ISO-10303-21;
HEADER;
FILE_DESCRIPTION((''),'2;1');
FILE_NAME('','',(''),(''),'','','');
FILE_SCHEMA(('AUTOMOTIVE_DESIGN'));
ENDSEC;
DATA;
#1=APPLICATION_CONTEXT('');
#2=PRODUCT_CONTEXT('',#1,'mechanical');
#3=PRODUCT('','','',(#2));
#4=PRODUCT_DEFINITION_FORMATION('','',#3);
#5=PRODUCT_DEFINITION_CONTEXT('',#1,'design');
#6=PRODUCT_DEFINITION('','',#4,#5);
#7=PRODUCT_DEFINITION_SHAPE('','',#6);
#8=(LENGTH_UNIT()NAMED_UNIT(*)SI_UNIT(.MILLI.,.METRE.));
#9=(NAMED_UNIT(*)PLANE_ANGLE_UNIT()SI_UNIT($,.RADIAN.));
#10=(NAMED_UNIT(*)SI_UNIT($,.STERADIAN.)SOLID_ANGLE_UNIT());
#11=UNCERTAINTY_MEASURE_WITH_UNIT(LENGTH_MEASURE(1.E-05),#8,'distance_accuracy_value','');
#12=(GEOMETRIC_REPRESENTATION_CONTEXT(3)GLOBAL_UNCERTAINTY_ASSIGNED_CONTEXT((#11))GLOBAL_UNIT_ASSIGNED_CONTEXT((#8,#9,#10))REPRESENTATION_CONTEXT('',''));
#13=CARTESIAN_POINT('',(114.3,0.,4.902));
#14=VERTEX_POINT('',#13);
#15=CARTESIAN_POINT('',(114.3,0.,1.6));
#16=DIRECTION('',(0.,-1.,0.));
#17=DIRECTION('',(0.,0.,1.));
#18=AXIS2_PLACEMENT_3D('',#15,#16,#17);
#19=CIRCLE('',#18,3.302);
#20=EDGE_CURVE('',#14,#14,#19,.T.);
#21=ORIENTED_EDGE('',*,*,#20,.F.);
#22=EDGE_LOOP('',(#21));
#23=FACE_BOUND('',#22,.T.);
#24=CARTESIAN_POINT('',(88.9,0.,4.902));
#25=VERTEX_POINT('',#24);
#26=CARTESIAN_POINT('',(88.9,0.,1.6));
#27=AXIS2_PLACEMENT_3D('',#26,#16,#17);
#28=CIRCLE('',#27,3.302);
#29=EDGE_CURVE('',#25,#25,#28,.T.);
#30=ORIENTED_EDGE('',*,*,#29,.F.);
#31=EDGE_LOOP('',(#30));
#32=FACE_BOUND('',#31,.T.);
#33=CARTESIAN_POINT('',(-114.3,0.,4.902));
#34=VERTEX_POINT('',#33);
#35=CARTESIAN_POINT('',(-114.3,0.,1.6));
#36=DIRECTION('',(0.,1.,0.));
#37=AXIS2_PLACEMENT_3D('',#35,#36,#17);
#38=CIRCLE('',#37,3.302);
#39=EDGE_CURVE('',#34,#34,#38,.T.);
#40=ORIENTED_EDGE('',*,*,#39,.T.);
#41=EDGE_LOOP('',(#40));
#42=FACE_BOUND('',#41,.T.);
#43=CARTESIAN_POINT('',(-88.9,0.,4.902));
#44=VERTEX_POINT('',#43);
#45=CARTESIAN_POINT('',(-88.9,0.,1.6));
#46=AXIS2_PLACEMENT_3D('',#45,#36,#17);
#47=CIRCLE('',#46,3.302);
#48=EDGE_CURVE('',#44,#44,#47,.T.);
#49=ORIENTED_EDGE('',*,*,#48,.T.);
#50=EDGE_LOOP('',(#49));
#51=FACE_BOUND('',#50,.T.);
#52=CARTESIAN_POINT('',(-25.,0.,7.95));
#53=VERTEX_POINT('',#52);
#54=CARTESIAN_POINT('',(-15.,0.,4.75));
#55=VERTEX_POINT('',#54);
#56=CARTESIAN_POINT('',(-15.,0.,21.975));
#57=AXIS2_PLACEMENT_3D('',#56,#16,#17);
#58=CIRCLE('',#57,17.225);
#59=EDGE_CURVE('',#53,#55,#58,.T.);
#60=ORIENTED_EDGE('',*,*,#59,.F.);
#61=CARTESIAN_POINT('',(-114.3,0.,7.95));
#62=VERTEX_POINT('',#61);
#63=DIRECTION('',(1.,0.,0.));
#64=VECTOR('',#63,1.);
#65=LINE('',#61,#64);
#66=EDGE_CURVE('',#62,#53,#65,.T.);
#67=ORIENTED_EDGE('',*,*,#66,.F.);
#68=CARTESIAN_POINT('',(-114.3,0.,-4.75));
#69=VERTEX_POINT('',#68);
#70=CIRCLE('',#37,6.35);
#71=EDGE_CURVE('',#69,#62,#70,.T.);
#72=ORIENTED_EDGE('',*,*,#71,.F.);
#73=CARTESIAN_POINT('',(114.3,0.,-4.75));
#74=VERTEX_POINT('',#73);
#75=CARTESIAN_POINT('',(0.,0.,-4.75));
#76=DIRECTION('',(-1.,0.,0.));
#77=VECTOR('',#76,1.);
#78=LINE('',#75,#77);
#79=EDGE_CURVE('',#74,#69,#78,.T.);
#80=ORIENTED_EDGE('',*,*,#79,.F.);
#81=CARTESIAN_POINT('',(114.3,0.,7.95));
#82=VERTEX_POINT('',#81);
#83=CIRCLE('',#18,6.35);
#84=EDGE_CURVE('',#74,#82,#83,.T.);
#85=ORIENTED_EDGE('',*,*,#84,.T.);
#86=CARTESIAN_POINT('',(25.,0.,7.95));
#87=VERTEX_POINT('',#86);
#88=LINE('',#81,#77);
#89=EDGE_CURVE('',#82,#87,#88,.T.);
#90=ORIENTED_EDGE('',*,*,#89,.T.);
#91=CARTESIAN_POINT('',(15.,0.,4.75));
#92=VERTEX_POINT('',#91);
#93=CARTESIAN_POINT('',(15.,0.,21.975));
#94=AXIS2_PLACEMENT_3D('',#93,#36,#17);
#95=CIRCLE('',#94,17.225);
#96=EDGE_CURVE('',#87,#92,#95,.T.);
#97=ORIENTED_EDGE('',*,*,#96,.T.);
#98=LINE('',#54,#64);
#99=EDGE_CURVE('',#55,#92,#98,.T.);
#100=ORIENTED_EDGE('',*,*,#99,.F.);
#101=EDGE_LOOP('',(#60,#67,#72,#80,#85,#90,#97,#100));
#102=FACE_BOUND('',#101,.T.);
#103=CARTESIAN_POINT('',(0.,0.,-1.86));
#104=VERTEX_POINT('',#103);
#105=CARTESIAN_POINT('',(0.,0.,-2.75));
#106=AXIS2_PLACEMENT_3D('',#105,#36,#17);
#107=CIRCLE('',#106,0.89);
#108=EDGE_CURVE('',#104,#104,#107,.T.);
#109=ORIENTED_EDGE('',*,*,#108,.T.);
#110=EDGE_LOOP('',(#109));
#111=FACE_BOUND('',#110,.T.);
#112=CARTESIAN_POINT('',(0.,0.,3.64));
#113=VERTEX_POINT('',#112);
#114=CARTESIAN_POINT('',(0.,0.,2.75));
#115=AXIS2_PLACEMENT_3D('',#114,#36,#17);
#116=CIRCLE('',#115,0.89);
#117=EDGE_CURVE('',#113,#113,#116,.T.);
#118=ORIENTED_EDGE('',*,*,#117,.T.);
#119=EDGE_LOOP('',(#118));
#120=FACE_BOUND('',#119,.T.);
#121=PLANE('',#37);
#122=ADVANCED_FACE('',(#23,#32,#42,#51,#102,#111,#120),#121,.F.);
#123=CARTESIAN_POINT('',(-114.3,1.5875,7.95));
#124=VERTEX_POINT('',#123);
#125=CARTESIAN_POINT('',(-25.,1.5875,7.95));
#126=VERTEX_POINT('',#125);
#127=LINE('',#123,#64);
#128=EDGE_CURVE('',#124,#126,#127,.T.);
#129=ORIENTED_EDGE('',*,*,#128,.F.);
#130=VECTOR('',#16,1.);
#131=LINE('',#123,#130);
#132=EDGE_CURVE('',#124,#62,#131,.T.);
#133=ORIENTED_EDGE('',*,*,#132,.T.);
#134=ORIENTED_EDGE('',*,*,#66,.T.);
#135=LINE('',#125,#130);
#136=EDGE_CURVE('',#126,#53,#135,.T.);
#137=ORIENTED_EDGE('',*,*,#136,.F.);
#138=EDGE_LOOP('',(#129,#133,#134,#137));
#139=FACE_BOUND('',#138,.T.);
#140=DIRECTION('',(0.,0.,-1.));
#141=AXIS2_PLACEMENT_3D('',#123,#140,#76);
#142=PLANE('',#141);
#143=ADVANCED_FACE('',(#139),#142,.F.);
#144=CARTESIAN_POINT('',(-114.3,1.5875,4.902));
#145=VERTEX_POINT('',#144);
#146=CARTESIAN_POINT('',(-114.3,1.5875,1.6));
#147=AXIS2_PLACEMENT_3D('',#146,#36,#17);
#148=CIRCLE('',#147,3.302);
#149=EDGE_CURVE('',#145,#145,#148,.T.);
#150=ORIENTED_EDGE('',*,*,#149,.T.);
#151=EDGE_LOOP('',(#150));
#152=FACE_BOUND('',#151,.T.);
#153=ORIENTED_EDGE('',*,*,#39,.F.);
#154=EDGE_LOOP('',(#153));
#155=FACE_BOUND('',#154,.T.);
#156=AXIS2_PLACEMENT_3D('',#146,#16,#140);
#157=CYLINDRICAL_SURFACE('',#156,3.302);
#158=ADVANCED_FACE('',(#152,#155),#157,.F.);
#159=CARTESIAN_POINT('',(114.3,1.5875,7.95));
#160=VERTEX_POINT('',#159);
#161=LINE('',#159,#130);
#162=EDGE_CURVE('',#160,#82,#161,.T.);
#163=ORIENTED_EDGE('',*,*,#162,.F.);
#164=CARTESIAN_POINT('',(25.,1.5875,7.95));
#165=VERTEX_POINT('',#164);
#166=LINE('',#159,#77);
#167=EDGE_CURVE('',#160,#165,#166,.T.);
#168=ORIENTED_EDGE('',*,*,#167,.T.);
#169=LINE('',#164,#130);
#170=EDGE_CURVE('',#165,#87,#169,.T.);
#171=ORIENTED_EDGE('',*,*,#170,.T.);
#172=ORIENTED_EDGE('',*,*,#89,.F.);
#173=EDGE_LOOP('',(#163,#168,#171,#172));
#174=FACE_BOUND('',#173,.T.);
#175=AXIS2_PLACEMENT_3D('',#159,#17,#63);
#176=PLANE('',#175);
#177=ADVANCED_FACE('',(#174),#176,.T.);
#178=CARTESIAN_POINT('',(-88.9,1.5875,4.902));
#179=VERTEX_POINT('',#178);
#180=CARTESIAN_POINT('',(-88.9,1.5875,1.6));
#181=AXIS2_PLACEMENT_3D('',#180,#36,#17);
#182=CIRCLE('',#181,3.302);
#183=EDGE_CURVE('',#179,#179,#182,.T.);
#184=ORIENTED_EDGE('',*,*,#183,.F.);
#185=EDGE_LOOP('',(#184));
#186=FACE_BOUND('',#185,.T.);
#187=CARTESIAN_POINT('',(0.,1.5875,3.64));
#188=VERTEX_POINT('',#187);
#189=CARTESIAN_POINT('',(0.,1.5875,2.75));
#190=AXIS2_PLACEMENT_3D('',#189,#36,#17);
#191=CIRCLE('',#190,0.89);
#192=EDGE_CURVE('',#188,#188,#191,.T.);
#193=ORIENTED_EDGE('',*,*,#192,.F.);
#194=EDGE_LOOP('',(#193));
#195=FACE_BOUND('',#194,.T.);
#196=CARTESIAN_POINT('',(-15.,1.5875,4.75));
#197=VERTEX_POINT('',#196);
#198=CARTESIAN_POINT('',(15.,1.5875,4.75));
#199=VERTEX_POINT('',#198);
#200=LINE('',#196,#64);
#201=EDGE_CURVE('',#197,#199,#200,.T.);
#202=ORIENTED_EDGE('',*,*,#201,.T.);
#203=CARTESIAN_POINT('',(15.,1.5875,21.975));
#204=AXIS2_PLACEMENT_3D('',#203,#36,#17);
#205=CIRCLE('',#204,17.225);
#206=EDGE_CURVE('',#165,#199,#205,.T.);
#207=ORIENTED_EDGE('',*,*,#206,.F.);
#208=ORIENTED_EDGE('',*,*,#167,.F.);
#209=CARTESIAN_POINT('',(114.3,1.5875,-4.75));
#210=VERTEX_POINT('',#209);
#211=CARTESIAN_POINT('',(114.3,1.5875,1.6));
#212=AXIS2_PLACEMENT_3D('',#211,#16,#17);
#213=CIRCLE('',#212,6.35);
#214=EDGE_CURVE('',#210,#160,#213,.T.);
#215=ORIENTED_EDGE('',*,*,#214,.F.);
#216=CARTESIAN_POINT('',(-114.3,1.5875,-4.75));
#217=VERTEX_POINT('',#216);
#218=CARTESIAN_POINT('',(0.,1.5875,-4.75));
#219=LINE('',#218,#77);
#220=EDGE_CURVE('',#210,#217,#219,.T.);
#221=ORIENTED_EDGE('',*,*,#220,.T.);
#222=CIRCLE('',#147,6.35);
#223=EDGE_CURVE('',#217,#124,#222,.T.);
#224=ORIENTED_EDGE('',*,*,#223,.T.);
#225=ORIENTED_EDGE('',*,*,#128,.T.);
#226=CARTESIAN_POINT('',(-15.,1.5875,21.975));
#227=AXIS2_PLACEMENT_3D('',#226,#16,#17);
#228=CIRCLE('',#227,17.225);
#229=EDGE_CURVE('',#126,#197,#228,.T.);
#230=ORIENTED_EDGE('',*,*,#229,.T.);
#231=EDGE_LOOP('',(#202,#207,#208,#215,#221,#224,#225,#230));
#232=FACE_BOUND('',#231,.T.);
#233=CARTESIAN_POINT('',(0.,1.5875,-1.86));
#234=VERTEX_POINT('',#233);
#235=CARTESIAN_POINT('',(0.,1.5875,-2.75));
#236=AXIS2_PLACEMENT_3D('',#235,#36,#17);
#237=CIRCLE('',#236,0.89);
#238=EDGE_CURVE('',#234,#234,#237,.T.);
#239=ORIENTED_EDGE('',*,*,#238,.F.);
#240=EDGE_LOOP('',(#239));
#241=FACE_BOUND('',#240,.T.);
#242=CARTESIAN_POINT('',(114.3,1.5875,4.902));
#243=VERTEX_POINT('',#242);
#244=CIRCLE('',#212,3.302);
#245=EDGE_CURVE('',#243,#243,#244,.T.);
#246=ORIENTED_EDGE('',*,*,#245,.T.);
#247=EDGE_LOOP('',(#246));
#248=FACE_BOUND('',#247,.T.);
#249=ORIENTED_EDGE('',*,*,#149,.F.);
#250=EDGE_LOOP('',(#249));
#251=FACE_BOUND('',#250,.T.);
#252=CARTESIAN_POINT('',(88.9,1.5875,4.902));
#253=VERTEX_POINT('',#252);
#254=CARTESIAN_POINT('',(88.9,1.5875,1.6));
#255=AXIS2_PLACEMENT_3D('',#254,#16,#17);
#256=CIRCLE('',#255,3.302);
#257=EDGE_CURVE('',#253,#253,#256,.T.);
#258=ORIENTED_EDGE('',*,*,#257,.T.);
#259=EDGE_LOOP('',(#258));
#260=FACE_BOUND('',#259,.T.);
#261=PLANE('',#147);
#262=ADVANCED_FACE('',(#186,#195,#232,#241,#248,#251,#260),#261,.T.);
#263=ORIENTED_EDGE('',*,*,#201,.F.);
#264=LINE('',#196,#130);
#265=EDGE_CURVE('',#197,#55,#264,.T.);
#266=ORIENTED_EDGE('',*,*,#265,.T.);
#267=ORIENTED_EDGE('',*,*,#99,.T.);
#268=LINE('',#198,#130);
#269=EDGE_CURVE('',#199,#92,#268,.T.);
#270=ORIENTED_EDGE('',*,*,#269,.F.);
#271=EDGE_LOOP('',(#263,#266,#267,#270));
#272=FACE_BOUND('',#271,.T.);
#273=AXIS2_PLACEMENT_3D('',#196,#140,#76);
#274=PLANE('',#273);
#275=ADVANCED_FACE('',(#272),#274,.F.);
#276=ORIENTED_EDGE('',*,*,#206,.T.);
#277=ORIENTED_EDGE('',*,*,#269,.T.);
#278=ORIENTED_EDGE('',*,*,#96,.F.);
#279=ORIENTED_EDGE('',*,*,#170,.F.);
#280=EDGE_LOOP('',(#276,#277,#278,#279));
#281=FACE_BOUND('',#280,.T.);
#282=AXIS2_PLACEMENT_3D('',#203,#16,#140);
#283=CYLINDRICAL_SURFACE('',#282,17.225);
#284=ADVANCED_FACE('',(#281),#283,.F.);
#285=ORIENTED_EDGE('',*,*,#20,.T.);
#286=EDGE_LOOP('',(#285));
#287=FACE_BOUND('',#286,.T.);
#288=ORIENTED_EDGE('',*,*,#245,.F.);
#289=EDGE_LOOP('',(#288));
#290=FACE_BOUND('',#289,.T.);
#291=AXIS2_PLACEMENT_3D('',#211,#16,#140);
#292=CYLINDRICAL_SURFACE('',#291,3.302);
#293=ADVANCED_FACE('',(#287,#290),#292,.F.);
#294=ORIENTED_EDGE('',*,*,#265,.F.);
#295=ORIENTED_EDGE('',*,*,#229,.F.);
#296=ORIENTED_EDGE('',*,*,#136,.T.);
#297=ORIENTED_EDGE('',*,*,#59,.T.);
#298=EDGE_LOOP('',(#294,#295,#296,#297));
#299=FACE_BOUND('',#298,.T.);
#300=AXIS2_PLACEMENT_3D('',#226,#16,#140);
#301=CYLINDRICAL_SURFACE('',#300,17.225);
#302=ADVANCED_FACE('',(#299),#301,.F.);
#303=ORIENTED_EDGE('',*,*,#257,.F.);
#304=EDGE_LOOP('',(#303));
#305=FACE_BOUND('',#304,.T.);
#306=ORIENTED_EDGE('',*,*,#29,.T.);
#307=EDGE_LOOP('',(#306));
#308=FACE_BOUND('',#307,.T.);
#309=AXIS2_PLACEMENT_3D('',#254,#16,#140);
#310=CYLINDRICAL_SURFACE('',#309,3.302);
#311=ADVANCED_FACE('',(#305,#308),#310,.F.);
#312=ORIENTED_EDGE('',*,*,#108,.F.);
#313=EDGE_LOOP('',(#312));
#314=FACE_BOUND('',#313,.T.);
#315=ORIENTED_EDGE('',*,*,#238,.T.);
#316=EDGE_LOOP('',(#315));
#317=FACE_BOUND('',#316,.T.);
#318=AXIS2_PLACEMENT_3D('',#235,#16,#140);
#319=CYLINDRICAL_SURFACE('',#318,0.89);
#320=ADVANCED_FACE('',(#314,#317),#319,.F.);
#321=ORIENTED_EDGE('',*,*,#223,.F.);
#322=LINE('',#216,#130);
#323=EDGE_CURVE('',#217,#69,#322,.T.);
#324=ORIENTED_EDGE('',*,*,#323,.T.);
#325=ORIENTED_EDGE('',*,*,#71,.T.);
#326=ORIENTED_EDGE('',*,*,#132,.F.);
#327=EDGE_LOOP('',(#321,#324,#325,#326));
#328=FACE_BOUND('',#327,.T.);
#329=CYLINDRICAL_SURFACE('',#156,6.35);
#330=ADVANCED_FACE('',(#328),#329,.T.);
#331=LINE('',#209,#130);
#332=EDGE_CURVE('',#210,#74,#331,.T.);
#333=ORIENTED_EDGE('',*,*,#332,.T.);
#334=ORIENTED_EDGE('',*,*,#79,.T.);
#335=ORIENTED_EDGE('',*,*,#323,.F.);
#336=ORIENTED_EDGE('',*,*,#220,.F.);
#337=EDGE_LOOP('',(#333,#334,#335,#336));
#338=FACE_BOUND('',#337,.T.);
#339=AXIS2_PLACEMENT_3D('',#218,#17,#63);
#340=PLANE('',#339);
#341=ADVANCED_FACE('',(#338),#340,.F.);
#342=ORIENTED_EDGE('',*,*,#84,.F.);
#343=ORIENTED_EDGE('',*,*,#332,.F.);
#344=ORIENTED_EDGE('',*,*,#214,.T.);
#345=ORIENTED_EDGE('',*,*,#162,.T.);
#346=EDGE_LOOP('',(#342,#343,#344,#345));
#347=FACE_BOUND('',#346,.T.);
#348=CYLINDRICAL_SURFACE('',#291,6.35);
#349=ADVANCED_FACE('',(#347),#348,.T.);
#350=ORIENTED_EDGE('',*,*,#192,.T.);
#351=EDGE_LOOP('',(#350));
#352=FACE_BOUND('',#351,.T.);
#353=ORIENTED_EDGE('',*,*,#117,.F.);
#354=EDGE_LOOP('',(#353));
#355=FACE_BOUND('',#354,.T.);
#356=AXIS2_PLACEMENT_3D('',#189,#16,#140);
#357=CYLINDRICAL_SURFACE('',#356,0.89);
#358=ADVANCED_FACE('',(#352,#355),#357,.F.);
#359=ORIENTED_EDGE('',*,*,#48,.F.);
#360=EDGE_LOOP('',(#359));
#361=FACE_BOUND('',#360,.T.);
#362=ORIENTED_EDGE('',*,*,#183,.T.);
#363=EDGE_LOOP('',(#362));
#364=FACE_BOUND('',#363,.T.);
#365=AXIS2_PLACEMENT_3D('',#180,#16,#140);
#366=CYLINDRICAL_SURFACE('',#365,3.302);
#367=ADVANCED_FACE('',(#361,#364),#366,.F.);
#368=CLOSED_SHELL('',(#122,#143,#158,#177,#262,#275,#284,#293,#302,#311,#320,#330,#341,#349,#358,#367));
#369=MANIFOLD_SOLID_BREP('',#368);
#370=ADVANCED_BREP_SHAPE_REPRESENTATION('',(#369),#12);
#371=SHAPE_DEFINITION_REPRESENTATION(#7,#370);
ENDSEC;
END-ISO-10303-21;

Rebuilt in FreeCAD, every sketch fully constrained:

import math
import FreeCAD as App
import Part
import Sketcher
Q = App.Units.Quantity

doc = App.newDocument("Part")
body = doc.addObject("PartDesign::Body", "Body")

# Sketch on XZ plane
sketch1 = doc.addObject("Sketcher::SketchObject", "Sketch")
body.addObject(sketch1)
sketch1.AttachmentSupport = (doc.XZ_Plane, [""])
sketch1.MapMode = "FlatFace"
sketch1.addGeometry([
    Part.LineSegment(App.Vector(0, -4.8, 0), App.Vector(-114.3, -4.8, 0)),  # 0
    Part.ArcOfCircle(Part.Circle(App.Vector(-114.3, 1.6, 0), App.Vector(0, 0, 1), 6.3), math.radians(90), math.radians(270)),  # 1
    Part.LineSegment(App.Vector(-114.3, 8, 0), App.Vector(-25, 8, 0)),  # 2
    Part.ArcOfCircle(Part.Circle(App.Vector(-15, 22, 0), App.Vector(0, 0, 1), 17.2), math.radians(-125), math.radians(-90)),  # 3
    Part.LineSegment(App.Vector(-15, 4.8, 0), App.Vector(0, 4.8, 0)),  # 4
    Part.LineSegment(App.Vector(0, 4.8, 0), App.Vector(0, -4.8, 0)),  # 5
    Part.Circle(App.Vector(-114.3, 1.6, 0), App.Vector(0, 0, 1), 3.3),  # 6
    Part.Circle(App.Vector(-88.9, 1.6, 0), App.Vector(0, 0, 1), 3.3),  # 7
], False)
sketch1.addConstraint([
    Sketcher.Constraint("Tangent", 0, 2, 1, 2),
    Sketcher.Constraint("Tangent", 1, 1, 2, 1),
    Sketcher.Constraint("Coincident", 2, 2, 3, 1),
    Sketcher.Constraint("Tangent", 3, 2, 4, 1),
    Sketcher.Constraint("Coincident", 4, 2, 5, 1),
    Sketcher.Constraint("Coincident", 5, 2, 0, 1),
    Sketcher.Constraint("Horizontal", 0),
    Sketcher.Constraint("Horizontal", 2),
    Sketcher.Constraint("Horizontal", 4),
    Sketcher.Constraint("Vertical", 5),
    Sketcher.Constraint("Coincident", 6, 3, 1, 3),
    Sketcher.Constraint("Equal", 6, 7),
    Sketcher.Constraint("Symmetric", 4, 2, 5, 2, -1, 1),
    Sketcher.Constraint("Horizontal", 6, 3, 7, 3),
    Sketcher.Constraint("Diameter", 6, Q("0.26 in")),
    Sketcher.Constraint("Radius", 1, Q("0.25 in")),
    Sketcher.Constraint("DistanceX", 0, 2, 0, 1, Q("4.5 in")),
    Sketcher.Constraint("DistanceX", 1, 3, 7, 3, Q("1 in")),
    Sketcher.Constraint("Radius", 3, Q("17.225 mm")),
    Sketcher.Constraint("DistanceX", 2, 1, 2, 2, Q("89.3 mm")),
    Sketcher.Constraint("DistanceX", 4, 1, 4, 2, Q("15 mm")),
])
pad1 = doc.addObject("PartDesign::Pad", "Pad")
body.addObject(pad1)
pad1.Profile = sketch1
pad1.Length = Q("0.0625 in")
pad1.Reversed = True
doc.recompute()

mirrored = doc.addObject("PartDesign::Mirrored", "Mirrored")
body.addObject(mirrored)
mirrored.Originals = [pad1]
mirrored.MirrorPlane = (doc.YZ_Plane, [""])
body.Tip = mirrored

# Sketch on XZ plane
sketch2 = doc.addObject("Sketcher::SketchObject", "Sketch001")
body.addObject(sketch2)
sketch2.AttachmentSupport = (doc.XZ_Plane, [""])
sketch2.MapMode = "FlatFace"
sketch2.addGeometry([
    Part.Circle(App.Vector(0, -2.8, 0), App.Vector(0, 0, 1), 0.9),
    Part.Circle(App.Vector(0, 2.8, 0), App.Vector(0, 0, 1), 0.9),
], False)
sketch2.addConstraint([
    Sketcher.Constraint("Equal", 0, 1),
    Sketcher.Constraint("Symmetric", 0, 3, 1, 3, -1, 1),
    Sketcher.Constraint("PointOnObject", 0, 3, -2),
    Sketcher.Constraint("Diameter", 0, Q("1.78 mm")),
    Sketcher.Constraint("DistanceY", 0, 3, -1, 1, Q("2.75 mm")),
])
pocket1 = doc.addObject("PartDesign::Pocket", "Pocket")
body.addObject(pocket1)
pocket1.Profile = sketch2
pocket1.Type = "ThroughAll"

doc.recompute()
